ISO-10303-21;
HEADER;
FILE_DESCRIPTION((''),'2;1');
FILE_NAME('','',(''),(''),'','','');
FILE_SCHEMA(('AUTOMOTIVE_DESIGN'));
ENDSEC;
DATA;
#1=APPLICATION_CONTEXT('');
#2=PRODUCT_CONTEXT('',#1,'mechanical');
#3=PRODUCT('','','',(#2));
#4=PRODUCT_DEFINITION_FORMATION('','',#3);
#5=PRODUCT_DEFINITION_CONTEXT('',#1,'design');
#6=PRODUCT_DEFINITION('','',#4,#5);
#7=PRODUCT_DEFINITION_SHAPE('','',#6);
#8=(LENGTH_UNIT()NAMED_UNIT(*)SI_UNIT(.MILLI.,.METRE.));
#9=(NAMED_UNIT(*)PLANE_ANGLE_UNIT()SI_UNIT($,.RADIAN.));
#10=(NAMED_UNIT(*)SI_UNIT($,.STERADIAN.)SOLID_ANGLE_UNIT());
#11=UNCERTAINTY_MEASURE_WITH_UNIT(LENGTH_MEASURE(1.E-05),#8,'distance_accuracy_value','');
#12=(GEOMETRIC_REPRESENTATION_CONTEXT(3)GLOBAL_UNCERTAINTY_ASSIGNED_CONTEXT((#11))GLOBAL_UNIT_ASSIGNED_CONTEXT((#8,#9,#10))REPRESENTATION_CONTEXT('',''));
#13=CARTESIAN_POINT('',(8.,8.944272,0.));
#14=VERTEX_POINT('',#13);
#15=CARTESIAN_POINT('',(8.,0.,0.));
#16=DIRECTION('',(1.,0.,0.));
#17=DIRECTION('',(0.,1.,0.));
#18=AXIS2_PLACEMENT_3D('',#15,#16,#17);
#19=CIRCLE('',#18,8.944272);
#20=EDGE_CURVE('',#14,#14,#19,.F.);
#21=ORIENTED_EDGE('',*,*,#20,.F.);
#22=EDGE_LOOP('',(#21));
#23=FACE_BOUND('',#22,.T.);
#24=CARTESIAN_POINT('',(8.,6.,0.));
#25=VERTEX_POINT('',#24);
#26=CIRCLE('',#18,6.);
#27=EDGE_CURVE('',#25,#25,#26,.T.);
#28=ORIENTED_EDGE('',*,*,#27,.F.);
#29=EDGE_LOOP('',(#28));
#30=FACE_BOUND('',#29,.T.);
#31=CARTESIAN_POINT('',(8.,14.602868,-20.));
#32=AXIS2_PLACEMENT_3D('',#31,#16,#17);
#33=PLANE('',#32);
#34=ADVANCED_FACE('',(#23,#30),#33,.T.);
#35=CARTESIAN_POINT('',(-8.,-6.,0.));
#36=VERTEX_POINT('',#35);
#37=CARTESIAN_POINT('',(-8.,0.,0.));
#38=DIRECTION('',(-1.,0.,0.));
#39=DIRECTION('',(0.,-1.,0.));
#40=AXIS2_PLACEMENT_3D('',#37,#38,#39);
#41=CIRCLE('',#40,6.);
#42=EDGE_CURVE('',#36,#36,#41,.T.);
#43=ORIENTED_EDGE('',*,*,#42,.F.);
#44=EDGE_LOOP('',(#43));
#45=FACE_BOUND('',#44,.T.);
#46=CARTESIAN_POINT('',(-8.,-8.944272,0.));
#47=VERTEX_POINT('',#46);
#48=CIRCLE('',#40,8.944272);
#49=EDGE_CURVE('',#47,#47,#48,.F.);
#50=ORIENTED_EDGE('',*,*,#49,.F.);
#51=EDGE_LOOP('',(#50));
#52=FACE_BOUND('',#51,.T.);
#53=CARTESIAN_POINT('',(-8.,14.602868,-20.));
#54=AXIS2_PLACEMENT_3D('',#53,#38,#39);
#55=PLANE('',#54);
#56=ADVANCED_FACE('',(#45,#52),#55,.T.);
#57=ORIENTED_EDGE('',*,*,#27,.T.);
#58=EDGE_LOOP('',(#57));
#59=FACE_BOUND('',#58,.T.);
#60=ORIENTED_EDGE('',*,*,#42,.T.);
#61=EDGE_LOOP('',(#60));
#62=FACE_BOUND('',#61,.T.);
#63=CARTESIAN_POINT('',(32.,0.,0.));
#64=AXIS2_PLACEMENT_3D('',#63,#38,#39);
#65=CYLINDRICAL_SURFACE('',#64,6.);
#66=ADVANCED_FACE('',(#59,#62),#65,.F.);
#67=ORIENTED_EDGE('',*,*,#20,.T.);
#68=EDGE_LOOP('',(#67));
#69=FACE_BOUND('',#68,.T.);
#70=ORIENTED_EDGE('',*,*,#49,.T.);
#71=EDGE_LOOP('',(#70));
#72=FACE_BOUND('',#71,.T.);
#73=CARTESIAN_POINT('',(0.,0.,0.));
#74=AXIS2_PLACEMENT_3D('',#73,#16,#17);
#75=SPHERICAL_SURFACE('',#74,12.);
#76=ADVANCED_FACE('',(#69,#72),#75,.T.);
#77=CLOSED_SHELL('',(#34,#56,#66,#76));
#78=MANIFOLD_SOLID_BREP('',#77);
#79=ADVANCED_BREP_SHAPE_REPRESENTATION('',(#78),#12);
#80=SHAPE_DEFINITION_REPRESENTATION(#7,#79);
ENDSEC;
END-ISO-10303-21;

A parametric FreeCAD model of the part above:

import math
import FreeCAD as App
import Part
import Sketcher
Q = App.Units.Quantity

doc = App.newDocument("Part")
body = doc.addObject("PartDesign::Body", "Body")

# Sketch on XY plane
sketch1 = body.newObject("Sketcher::SketchObject", "Sketch")
sketch1.AttachmentSupport = (doc.getObject("XY_Plane"), [""])
sketch1.MapMode = "FlatFace"
sketch1.addGeometry([
    Part.LineSegment(App.Vector(0, -12, 0), App.Vector(0, 12, 0)),
    Part.ArcOfCircle(Part.Circle(App.Vector(0, 0, 0), App.Vector(0, 0, 1), 12), math.radians(90), math.radians(270)),
], False)
sketch1.addConstraint([
    Sketcher.Constraint("Coincident", 0, 1, 1, 2),
    Sketcher.Constraint("Coincident", 1, 1, 0, 2),
    Sketcher.Constraint("Vertical", 0),
    Sketcher.Constraint("Coincident", 1, 3, -1, 1),
    Sketcher.Constraint("PointOnObject", 0, 1, -2),
    Sketcher.Constraint("Radius", 1, Q("12 mm")),
])
revolution = body.newObject("PartDesign::Revolution", "Revolution")
revolution.Profile = sketch1
revolution.ReferenceAxis = (sketch1, ["V_Axis"])
revolution.Angle = 360

# Sketch on XY plane
sketch2 = body.newObject("Sketcher::SketchObject", "Sketch001")
sketch2.AttachmentSupport = (doc.getObject("XY_Plane"), [""])
sketch2.MapMode = "FlatFace"
sketch2.addGeometry([
    Part.LineSegment(App.Vector(-17.157, 17.157, 0), App.Vector(-17.157, -17.157, 0)),  # 0
    Part.LineSegment(App.Vector(-17.157, -17.157, 0), App.Vector(-8, -17.157, 0)),  # 1
    Part.LineSegment(App.Vector(-8, -17.157, 0), App.Vector(-8, 14.602868, 0)),  # 2
    Part.LineSegment(App.Vector(-8, 14.602868, 0), App.Vector(8, 14.602868, 0)),  # 3
    Part.LineSegment(App.Vector(8, 14.602868, 0), App.Vector(8, -17.157, 0)),  # 4
    Part.LineSegment(App.Vector(8, -17.157, 0), App.Vector(17.157, -17.157, 0)),  # 5
    Part.LineSegment(App.Vector(17.157, -17.157, 0), App.Vector(17.157, 17.157, 0)),  # 6
    Part.LineSegment(App.Vector(17.157, 17.157, 0), App.Vector(-17.157, 17.157, 0)),  # 7
], False)
sketch2.addConstraint([
    Sketcher.Constraint("Coincident", 0, 2, 1, 1),
    Sketcher.Constraint("Coincident", 1, 2, 2, 1),
    Sketcher.Constraint("Coincident", 2, 2, 3, 1),
    Sketcher.Constraint("Coincident", 3, 2, 4, 1),
    Sketcher.Constraint("Coincident", 4, 2, 5, 1),
    Sketcher.Constraint("Coincident", 5, 2, 6, 1),
    Sketcher.Constraint("Coincident", 6, 2, 7, 1),
    Sketcher.Constraint("Coincident", 7, 2, 0, 1),
    Sketcher.Constraint("Vertical", 0),
    Sketcher.Constraint("Horizontal", 1),
    Sketcher.Constraint("Vertical", 2),
    Sketcher.Constraint("Horizontal", 3),
    Sketcher.Constraint("Vertical", 4),
    Sketcher.Constraint("Horizontal", 5),
    Sketcher.Constraint("Vertical", 6),
    Sketcher.Constraint("Horizontal", 7),
    Sketcher.Constraint("Symmetric", 0, 2, 6, 2, -1, 1),
    Sketcher.Constraint("Symmetric", 1, 2, 4, 2, -2),
    Sketcher.Constraint("Equal", 7, 0),
    Sketcher.Constraint("DistanceX", 3, 1, 3, 2, Q("16 mm")),
    Sketcher.Constraint("DistanceX", 1, 1, 1, 2, Q("9.157 mm")),
    Sketcher.Constraint("DistanceY", 2, 1, 2, 2, Q("31.759868 mm")),
])
pocket1 = body.newObject("PartDesign::Pocket", "Pocket")
pocket1.Profile = sketch2
pocket1.Length = 40
pocket1.Midplane = True

# Sketch on YZ plane
sketch3 = body.newObject("Sketcher::SketchObject", "Sketch002")
sketch3.AttachmentSupport = (doc.getObject("YZ_Plane"), [""])
sketch3.MapMode = "FlatFace"
sketch3.AttachmentOffset = App.Placement(App.Vector(0, 0, -8), App.Rotation())
sketch3.addGeometry(Part.Circle(App.Vector(0, 0, 0), App.Vector(0, 0, 1), 6), False)
sketch3.addConstraint([
    Sketcher.Constraint("Coincident", 0, 3, -1, 1),
    Sketcher.Constraint("Diameter", 0, Q("12 mm")),
])
pocket2 = body.newObject("PartDesign::Pocket", "Pocket001")
pocket2.Profile = sketch3
pocket2.Length = 40
pocket2.Reversed = True

doc.recompute()
